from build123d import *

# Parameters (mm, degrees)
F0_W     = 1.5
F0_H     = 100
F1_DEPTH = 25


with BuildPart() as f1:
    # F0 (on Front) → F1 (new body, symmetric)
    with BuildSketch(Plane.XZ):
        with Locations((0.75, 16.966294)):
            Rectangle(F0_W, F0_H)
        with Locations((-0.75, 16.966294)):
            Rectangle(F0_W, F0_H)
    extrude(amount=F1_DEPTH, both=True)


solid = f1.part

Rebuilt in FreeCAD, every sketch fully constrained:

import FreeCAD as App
import Part
import Sketcher
from FreeCAD import Vector

doc = App.newDocument("Part")
body = doc.addObject("PartDesign::Body", "Body")

# Sketch on XZ plane
sketch1 = doc.addObject("Sketcher::SketchObject", "Sketch")
body.addObject(sketch1)
sketch1.AttachmentSupport = (doc.XZ_Plane, [""])
sketch1.MapMode = "FlatFace"
sketch1.addGeometry([
    Part.LineSegment(Vector(1.5, -33, 0), Vector(1.5, 67, 0)),
    Part.LineSegment(Vector(1.5, 67, 0), Vector(-1.5, 67, 0)),
    Part.LineSegment(Vector(-1.5, 67, 0), Vector(-1.5, -33, 0)),
    Part.LineSegment(Vector(-1.5, -33, 0), Vector(1.5, -33, 0)),
], False)
sketch1.addConstraint([
    Sketcher.Constraint("Coincident", 0, 2, 1, 1),
    Sketcher.Constraint("Coincident", 1, 2, 2, 1),
    Sketcher.Constraint("Coincident", 2, 2, 3, 1),
    Sketcher.Constraint("Coincident", 3, 2, 0, 1),
    Sketcher.Constraint("Vertical", 0),
    Sketcher.Constraint("Horizontal", 1),
    Sketcher.Constraint("Vertical", 2),
    Sketcher.Constraint("Horizontal", 3),
    Sketcher.Constraint("DistanceX", 1, 2, 1, 1, 3.0),
    Sketcher.Constraint("DistanceY", 0, 1, 0, 2, 100.0),
    Sketcher.Constraint("DistanceX", -1, 1, 0, 2, 1.5),
    Sketcher.Constraint("DistanceY", -1, 1, 0, 2, 66.966294),
])
pad1 = doc.addObject("PartDesign::Pad", "Pad")
body.addObject(pad1)
pad1.Profile = sketch1
pad1.Length = 50
pad1.Midplane = True

doc.recompute()
